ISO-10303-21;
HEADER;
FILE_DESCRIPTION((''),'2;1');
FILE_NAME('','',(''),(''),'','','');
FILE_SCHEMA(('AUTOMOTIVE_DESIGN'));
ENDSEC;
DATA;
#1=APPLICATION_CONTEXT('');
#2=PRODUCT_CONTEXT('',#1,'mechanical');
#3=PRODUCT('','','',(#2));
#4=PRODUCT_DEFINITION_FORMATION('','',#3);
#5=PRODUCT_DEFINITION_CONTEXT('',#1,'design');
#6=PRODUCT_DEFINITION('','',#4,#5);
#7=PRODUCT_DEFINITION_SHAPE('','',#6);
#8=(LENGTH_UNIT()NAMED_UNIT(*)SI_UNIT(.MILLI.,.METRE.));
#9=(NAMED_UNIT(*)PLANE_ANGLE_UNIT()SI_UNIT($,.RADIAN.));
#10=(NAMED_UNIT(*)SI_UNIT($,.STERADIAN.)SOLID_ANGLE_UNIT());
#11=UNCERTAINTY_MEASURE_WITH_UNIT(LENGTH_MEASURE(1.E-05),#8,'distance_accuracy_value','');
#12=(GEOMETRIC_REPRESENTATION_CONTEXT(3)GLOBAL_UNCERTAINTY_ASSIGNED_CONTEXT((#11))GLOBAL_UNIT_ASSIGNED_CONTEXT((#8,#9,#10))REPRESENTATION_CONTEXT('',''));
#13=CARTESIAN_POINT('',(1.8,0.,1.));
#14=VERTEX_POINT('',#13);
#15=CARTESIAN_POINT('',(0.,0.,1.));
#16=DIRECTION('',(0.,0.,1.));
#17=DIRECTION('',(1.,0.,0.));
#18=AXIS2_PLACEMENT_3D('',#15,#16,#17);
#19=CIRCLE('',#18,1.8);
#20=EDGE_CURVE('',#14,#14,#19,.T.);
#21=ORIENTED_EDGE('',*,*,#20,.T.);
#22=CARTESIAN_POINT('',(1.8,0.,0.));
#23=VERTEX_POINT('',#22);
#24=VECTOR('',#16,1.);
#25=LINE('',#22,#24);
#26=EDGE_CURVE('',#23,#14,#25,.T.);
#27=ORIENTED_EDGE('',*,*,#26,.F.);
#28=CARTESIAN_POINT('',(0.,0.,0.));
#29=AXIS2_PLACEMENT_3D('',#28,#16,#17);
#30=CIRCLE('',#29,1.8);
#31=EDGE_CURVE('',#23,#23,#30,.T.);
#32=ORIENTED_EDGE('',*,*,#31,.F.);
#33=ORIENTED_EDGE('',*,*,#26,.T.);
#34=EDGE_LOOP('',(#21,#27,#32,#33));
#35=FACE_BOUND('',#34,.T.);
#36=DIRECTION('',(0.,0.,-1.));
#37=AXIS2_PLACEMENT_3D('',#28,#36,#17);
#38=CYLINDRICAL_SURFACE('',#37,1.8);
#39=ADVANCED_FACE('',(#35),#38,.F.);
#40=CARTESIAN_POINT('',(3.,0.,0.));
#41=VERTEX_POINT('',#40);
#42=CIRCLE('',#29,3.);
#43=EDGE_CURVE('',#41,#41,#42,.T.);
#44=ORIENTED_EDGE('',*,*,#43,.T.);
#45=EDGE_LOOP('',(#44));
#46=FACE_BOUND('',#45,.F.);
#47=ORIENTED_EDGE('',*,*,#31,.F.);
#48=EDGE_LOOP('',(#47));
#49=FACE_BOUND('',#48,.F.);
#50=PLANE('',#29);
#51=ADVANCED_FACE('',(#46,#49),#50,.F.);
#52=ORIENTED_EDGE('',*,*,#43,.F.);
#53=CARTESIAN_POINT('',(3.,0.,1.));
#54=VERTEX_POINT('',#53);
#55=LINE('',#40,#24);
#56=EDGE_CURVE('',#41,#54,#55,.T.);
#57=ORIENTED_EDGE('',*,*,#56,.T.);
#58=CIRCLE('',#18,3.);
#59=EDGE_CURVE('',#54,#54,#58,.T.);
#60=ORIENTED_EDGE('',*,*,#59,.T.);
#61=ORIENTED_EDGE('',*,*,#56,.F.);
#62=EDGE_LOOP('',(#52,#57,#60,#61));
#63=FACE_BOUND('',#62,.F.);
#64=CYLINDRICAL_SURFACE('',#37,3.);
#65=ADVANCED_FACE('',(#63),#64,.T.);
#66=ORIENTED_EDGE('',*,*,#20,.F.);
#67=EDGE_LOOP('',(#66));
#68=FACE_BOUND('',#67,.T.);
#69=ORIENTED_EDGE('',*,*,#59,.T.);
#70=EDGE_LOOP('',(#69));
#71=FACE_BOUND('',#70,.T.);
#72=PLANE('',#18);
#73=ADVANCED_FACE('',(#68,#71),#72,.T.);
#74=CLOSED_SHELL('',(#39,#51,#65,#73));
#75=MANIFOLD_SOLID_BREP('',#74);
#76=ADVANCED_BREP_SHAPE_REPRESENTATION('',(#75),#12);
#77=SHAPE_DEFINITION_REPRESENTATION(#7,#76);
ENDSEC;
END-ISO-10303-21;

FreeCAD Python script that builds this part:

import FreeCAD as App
import Part
import Sketcher

doc = App.newDocument("Part")
params = doc.addObject("Spreadsheet::Sheet", "Params")
for row, (alias, value) in enumerate([
    ("sketch1_diameter", "6 mm"),
    ("sketch1_diameter2", "3.6 mm"),
    ("pad1_length", "1 mm"),
], start=1):
    params.set(f"A{row}", alias)
    params.set(f"B{row}", "=" + value)
    params.setAlias(f"B{row}", alias)

body = doc.addObject("PartDesign::Body", "Body")

# Sketch on XY plane
sketch1 = doc.addObject("Sketcher::SketchObject", "Sketch")
body.addObject(sketch1)
sketch1.AttachmentSupport = (doc.XY_Plane, [""])
sketch1.MapMode = "FlatFace"
sketch1.addGeometry(Part.Circle(App.Vector(0, 0, 0), App.Vector(0, 0, 1), 3), False)
sketch1.addGeometry(Part.Circle(App.Vector(0, 0, 0), App.Vector(0, 0, 1), 1.8), False)
sketch1.addConstraint(Sketcher.Constraint("Coincident", 0, 3, -1, 1))
sketch1.addConstraint(Sketcher.Constraint("Coincident", 1, 3, -1, 1))
sketch1.addConstraint(Sketcher.Constraint("Diameter", 0, 6.0))
sketch1.addConstraint(Sketcher.Constraint("Diameter", 1, 3.6))
sketch1.setExpression("Constraints[2]", "Params.sketch1_diameter")
sketch1.setExpression("Constraints[3]", "Params.sketch1_diameter2")
pad1 = doc.addObject("PartDesign::Pad", "Pad")
body.addObject(pad1)
pad1.Profile = sketch1
pad1.setExpression("Length", "Params.pad1_length")

doc.recompute()
